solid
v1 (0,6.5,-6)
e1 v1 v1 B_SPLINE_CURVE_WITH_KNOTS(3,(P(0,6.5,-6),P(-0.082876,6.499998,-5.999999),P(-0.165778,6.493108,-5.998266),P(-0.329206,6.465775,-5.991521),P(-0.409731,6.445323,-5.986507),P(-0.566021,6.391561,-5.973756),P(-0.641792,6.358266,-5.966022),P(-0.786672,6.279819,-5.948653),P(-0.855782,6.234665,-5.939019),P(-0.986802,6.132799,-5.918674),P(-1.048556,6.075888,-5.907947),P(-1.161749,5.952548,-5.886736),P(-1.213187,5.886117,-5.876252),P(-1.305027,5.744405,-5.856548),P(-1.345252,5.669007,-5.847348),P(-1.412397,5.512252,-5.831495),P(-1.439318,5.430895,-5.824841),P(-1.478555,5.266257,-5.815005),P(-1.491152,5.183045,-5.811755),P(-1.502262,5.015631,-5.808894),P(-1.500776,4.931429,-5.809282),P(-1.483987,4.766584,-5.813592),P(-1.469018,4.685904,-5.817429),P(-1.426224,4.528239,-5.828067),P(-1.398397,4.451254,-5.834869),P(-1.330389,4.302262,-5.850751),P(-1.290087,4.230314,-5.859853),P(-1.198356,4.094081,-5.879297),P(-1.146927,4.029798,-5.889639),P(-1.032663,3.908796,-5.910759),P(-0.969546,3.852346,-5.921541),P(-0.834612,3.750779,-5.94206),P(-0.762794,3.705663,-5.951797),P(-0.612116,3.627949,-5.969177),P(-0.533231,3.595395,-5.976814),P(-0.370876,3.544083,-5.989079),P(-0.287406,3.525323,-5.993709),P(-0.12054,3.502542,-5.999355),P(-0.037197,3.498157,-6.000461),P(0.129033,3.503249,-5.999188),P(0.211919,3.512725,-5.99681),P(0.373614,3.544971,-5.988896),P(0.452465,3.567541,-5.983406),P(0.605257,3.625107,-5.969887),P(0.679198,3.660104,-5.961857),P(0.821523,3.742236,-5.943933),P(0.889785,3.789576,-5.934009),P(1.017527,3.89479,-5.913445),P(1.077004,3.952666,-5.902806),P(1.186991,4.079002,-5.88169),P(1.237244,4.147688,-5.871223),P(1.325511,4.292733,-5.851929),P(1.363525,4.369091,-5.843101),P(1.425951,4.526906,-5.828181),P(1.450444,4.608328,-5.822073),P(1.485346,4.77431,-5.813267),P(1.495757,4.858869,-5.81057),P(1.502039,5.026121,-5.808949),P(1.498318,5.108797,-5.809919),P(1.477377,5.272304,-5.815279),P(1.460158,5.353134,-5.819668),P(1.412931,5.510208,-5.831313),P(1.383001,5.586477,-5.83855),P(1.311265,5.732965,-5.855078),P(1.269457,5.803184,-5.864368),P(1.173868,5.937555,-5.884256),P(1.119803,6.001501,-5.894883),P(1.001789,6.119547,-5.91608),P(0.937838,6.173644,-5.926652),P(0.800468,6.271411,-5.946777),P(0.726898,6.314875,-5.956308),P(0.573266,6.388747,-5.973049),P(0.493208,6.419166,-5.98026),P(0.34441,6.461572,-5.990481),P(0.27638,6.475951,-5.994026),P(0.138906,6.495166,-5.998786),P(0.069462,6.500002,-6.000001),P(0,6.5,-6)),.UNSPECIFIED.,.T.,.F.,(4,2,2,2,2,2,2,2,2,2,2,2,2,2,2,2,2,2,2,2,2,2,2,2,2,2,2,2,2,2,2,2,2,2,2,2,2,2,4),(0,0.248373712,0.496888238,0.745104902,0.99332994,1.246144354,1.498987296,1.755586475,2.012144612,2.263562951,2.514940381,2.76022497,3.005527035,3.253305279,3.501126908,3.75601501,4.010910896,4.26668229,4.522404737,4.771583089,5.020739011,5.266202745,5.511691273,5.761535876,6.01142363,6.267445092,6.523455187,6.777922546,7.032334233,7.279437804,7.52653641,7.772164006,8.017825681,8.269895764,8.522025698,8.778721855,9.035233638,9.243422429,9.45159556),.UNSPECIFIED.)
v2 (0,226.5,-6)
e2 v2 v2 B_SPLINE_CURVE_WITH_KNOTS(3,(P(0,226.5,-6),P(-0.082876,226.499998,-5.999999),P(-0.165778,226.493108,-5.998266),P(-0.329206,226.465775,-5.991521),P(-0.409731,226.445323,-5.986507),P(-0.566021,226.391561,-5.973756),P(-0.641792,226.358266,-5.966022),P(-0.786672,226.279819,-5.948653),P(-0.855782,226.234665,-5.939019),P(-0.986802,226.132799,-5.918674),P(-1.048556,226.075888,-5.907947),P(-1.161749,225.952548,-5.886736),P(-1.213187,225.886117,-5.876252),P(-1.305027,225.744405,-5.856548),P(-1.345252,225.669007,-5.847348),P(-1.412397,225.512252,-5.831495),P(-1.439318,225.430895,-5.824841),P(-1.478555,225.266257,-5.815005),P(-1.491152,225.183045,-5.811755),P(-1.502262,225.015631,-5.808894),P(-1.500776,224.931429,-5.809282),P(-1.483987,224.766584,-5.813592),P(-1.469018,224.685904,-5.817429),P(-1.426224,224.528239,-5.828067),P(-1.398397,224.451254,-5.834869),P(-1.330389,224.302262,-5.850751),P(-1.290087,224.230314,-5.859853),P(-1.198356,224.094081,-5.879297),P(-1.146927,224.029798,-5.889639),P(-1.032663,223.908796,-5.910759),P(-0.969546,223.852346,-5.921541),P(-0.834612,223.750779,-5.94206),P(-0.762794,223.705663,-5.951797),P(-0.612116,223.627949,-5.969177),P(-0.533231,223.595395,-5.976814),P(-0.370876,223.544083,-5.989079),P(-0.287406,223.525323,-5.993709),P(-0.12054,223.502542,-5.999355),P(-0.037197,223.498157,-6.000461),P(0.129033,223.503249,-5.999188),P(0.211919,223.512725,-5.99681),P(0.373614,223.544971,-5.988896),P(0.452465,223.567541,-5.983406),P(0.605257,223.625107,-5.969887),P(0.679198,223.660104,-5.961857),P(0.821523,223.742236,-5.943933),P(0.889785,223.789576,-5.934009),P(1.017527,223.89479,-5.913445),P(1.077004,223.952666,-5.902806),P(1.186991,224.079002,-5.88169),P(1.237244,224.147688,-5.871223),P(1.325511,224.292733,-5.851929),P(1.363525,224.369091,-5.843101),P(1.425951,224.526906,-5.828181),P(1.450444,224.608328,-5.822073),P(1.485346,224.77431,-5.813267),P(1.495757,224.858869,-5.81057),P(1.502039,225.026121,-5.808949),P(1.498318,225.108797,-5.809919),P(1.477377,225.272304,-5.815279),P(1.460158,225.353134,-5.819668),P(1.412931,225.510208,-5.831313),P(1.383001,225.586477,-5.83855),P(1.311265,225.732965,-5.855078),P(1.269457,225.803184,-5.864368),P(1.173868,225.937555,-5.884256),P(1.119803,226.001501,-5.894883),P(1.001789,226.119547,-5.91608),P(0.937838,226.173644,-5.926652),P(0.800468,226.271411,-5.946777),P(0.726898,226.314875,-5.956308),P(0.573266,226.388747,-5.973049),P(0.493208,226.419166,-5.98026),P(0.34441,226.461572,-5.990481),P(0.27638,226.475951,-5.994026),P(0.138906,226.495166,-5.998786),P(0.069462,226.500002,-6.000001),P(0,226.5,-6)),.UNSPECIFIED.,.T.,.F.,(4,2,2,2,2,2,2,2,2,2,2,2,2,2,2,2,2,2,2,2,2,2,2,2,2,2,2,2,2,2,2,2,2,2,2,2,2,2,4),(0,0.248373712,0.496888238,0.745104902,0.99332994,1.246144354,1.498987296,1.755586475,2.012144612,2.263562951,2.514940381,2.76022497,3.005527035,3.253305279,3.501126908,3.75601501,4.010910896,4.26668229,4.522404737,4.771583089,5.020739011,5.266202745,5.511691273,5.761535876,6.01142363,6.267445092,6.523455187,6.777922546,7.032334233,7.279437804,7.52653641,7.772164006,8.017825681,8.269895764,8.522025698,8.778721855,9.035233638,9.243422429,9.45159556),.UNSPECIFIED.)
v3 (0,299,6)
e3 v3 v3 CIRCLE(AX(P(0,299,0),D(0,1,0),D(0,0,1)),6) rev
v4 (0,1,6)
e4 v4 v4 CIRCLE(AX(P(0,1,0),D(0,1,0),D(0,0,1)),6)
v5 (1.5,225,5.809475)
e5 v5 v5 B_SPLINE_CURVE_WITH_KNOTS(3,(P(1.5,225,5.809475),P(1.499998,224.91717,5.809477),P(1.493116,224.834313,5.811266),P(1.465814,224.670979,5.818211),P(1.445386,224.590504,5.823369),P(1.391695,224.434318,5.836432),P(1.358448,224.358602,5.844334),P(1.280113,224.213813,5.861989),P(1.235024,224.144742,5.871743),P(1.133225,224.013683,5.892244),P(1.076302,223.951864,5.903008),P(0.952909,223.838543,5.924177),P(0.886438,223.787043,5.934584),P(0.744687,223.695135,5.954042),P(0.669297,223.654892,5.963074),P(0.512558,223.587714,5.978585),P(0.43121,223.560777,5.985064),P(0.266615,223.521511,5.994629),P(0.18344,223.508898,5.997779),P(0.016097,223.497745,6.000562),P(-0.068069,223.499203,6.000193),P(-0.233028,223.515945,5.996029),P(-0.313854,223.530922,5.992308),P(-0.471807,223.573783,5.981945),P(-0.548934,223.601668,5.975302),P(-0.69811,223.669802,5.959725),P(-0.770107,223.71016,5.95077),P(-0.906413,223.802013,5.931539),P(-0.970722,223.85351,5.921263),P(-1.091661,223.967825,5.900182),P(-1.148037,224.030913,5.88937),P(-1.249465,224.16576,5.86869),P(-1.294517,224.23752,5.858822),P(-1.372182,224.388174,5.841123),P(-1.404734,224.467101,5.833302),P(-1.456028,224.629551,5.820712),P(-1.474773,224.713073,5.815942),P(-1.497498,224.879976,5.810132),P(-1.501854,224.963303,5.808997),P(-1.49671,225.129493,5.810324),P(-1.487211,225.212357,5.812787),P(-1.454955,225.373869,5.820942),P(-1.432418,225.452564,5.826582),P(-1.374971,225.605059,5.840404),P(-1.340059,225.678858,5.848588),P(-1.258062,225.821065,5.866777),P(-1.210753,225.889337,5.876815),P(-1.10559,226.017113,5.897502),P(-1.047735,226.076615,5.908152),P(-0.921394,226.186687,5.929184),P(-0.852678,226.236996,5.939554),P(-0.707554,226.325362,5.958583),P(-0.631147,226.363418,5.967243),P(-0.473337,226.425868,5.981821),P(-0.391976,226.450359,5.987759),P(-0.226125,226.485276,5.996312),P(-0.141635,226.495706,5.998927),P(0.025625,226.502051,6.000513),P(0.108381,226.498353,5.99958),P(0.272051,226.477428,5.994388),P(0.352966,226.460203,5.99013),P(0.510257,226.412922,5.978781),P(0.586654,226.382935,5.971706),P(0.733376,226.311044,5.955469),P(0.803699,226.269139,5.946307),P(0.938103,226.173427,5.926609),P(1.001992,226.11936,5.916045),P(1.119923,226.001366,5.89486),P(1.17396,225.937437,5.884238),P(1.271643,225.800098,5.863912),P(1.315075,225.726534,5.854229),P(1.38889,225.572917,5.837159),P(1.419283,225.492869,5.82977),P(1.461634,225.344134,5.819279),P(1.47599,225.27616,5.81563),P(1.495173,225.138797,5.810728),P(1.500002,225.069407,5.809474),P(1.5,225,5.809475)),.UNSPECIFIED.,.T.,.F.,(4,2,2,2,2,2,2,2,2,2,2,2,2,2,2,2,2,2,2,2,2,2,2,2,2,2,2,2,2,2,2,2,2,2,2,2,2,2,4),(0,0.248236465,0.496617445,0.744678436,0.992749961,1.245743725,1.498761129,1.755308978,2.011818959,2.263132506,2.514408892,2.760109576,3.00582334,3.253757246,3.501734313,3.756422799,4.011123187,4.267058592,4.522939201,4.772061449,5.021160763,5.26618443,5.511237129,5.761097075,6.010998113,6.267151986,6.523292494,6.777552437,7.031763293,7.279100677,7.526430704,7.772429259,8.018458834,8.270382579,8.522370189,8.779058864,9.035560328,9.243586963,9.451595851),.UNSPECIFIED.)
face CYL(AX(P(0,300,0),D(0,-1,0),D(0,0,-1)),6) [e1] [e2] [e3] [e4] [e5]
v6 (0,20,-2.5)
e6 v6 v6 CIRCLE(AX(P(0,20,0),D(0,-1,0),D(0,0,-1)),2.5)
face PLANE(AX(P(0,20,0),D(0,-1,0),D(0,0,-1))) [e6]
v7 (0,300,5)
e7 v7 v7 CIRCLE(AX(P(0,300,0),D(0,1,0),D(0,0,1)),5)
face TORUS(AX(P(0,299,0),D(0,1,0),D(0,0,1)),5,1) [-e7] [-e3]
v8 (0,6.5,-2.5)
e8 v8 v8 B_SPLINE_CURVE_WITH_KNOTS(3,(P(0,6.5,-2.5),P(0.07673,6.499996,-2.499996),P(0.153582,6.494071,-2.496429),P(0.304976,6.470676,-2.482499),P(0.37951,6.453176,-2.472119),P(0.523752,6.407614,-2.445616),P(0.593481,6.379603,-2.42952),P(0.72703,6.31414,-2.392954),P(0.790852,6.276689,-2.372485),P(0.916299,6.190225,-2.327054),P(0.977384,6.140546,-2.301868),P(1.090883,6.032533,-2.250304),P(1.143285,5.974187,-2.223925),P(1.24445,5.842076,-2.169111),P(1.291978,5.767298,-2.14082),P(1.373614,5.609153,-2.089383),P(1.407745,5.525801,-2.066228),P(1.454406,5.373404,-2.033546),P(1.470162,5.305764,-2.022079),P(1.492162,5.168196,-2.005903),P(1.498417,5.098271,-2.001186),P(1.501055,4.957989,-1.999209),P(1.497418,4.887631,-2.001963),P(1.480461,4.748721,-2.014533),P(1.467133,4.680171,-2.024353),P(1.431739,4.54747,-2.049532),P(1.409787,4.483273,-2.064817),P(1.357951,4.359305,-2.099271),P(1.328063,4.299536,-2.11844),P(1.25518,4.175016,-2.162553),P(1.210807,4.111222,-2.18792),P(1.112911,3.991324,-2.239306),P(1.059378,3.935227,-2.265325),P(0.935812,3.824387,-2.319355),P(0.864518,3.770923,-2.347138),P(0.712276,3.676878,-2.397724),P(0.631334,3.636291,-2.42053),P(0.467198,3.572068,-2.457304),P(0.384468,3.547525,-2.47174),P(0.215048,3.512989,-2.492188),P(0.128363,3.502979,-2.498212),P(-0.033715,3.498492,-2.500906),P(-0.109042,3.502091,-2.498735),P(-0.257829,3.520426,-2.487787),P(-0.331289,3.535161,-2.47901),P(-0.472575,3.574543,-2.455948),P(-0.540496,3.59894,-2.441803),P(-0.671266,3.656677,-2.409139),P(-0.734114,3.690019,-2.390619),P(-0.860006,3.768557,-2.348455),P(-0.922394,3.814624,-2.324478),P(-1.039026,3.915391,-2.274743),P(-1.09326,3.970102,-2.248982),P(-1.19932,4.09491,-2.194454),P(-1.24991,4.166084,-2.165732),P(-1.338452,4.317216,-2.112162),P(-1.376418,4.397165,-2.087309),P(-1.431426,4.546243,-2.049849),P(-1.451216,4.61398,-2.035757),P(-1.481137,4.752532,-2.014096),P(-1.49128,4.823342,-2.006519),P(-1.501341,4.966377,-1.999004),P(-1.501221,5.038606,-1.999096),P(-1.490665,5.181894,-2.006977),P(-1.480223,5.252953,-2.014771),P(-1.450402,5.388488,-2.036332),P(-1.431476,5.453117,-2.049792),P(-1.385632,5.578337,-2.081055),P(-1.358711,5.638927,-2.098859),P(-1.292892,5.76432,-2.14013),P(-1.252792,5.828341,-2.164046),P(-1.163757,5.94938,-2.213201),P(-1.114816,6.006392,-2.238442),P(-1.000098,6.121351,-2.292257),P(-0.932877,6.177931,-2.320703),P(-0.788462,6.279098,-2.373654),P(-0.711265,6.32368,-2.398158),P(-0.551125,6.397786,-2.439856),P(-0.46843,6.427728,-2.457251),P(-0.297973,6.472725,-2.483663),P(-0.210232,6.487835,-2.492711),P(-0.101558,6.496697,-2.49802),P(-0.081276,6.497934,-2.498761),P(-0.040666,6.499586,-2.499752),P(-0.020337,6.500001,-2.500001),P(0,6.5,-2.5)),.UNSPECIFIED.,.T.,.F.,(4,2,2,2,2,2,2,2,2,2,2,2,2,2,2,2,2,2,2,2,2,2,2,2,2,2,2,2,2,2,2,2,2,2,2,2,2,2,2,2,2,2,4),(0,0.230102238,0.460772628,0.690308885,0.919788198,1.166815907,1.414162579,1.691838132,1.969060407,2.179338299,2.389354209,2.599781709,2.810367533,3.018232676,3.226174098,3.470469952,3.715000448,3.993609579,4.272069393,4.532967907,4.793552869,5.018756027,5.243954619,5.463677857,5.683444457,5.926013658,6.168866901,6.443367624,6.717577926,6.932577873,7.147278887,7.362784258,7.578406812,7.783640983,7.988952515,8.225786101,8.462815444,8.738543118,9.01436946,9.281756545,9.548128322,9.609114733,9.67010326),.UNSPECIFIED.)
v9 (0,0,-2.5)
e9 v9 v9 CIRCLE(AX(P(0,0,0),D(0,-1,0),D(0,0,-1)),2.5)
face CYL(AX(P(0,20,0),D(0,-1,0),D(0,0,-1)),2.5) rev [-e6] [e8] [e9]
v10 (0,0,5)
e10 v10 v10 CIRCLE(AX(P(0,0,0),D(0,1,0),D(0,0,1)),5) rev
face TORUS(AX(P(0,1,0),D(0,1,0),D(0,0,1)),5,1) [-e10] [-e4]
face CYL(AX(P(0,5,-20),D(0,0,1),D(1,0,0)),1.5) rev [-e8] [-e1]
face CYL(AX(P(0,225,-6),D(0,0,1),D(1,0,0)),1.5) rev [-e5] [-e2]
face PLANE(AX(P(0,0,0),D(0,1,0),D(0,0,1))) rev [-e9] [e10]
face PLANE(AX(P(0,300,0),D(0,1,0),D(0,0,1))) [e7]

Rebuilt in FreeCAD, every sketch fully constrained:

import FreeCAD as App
import Part
import Sketcher
Q = App.Units.Quantity


def edges_at(feature, points):
    """Names of the edges that pass closest to the given points."""
    edges = feature.Shape.Edges
    near = lambda p: min(range(len(edges)), key=lambda i: edges[i].distToShape(Part.Vertex(*p))[0])
    return sorted({f"Edge{near(p) + 1}" for p in points})

doc = App.newDocument("Part")
params = doc.addObject("Spreadsheet::Sheet", "Params")
for row, (alias, value) in enumerate([
    ("sketch1_diameter", "12 mm"),
    ("pad1_length", "300 mm"),
    ("sketch2_diameter", "5 mm"),
    ("pocket1_length", "20 mm"),
    ("sketch3_diameter", "3 mm"),
    ("pocket2_length", "20 mm"),
    ("fillet_radius", "1 mm"),
    ("sketch4_diameter", "3 mm"),
], start=1):
    params.set(f"A{row}", alias)
    params.set(f"B{row}", "=" + value)
    params.setAlias(f"B{row}", alias)

body = doc.addObject("PartDesign::Body", "Body")

# Sketch on XZ plane
sketch1 = body.newObject("Sketcher::SketchObject", "Sketch")
sketch1.AttachmentSupport = (doc.getObject("XZ_Plane"), [""])
sketch1.MapMode = "FlatFace"
sketch1.addGeometry(Part.Circle(App.Vector(0, 0, 0), App.Vector(0, 0, 1), 6), False)
sketch1.addConstraint([
    Sketcher.Constraint("Coincident", 0, 3, -1, 1),
    Sketcher.Constraint("Diameter", 0, Q("12 mm")),
])
sketch1.setExpression("Constraints[1]", "Params.sketch1_diameter")
pad1 = body.newObject("PartDesign::Pad", "Pad")
pad1.Profile = sketch1
pad1.setExpression("Length", "Params.pad1_length")
pad1.Reversed = True

# Sketch on XZ plane
sketch2 = body.newObject("Sketcher::SketchObject", "Sketch001")
sketch2.AttachmentSupport = (doc.getObject("XZ_Plane"), [""])
sketch2.MapMode = "FlatFace"
sketch2.addGeometry(Part.Circle(App.Vector(0, 0, 0), App.Vector(0, 0, 1), 2.5), False)
sketch2.addConstraint([
    Sketcher.Constraint("Coincident", 0, 3, -1, 1),
    Sketcher.Constraint("Diameter", 0, Q("5 mm")),
])
sketch2.setExpression("Constraints[1]", "Params.sketch2_diameter")
pocket1 = body.newObject("PartDesign::Pocket", "Pocket")
pocket1.Profile = sketch2
pocket1.setExpression("Length", "Params.pocket1_length")

# Sketch on XY plane
sketch3 = body.newObject("Sketcher::SketchObject", "Sketch002")
sketch3.AttachmentSupport = (doc.getObject("XY_Plane"), [""])
sketch3.MapMode = "FlatFace"
sketch3.addGeometry(Part.Circle(App.Vector(0, 5, 0), App.Vector(0, 0, 1), 1.5), False)
sketch3.addConstraint([
    Sketcher.Constraint("PointOnObject", 0, 3, -2),
    Sketcher.Constraint("Diameter", 0, Q("3 mm")),
    Sketcher.Constraint("DistanceY", -1, 1, 0, 3, Q("5 mm")),
])
sketch3.setExpression("Constraints[1]", "Params.sketch3_diameter")
pocket2 = body.newObject("PartDesign::Pocket", "Pocket001")
pocket2.Profile = sketch3
pocket2.setExpression("Length", "Params.pocket2_length")
doc.recompute()

fillet = body.newObject("PartDesign::Fillet", "Fillet")
fillet.Base = (pocket2, edges_at(pocket2, [(-6, 0, 0), (-6, 300, 0)]))
fillet.setExpression("Radius", "Params.fillet_radius")

# Sketch on XY plane
sketch4 = body.newObject("Sketcher::SketchObject", "Sketch003")
sketch4.AttachmentSupport = (doc.getObject("XY_Plane"), [""])
sketch4.MapMode = "FlatFace"
sketch4.addGeometry(Part.Circle(App.Vector(0, 225, 0), App.Vector(0, 0, 1), 1.5), False)
sketch4.addConstraint([
    Sketcher.Constraint("PointOnObject", 0, 3, -2),
    Sketcher.Constraint("Diameter", 0, Q("3 mm")),
    Sketcher.Constraint("DistanceY", -1, 1, 0, 3, Q("225 mm")),
])
sketch4.setExpression("Constraints[1]", "Params.sketch4_diameter")
pocket3 = body.newObject("PartDesign::Pocket", "Pocket002")
pocket3.Profile = sketch4
pocket3.Type = "ThroughAll"
pocket3.Midplane = True

doc.recompute()
